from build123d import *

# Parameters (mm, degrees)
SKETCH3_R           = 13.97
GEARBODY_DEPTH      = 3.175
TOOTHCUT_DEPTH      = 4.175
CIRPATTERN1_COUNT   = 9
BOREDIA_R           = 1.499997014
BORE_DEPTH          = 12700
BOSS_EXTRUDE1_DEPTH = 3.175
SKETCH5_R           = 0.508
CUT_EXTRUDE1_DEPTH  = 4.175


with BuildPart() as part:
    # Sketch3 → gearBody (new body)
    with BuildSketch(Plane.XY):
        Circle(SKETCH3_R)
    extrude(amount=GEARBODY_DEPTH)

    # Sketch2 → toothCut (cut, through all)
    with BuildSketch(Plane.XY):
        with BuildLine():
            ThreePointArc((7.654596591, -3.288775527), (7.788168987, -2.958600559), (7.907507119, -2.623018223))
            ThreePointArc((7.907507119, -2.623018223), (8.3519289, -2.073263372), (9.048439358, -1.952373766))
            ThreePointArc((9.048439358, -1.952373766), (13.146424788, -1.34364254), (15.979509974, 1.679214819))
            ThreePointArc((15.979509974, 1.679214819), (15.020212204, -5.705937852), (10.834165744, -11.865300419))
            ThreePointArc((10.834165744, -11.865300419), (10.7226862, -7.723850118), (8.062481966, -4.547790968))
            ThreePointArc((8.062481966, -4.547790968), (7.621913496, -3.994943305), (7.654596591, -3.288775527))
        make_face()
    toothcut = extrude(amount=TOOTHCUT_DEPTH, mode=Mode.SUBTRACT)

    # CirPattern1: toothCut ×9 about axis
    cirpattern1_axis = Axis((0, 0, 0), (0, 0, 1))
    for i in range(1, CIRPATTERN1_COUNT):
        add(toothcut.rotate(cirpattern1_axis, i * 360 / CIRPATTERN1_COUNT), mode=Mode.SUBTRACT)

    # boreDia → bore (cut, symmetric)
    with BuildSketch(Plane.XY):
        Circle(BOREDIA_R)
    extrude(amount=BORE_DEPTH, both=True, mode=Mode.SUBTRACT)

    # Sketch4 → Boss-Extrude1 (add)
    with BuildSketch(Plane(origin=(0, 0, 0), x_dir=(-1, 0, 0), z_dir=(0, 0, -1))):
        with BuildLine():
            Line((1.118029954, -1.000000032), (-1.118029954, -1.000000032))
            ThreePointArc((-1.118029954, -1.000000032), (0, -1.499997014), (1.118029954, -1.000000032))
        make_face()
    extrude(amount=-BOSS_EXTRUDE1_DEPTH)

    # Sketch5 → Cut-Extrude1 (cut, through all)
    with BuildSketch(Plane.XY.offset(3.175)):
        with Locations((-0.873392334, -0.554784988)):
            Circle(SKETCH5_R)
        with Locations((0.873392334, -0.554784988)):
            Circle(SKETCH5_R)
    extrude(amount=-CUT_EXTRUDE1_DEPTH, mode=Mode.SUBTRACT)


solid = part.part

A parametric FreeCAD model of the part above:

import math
import FreeCAD as App
import Part
import Sketcher
from FreeCAD import Vector
Q = App.Units.Quantity

doc = App.newDocument("Part")
body = doc.addObject("PartDesign::Body", "Body")

sketch1 = doc.addObject("Sketcher::SketchObject", "Sketch")
body.addObject(sketch1)
sketch1.AttachmentSupport = (doc.XY_Plane, [""])
sketch1.MapMode = "FlatFace"
sketch1.addGeometry(Part.Circle(Vector(0, 0, 0), Vector(0, 0, 1), 14), False)
sketch1.addConstraint([
    Sketcher.Constraint("Coincident", 0, 3, -1, 1),
    Sketcher.Constraint("Diameter", 0, Q("1.1 in")),
])
pad1 = doc.addObject("PartDesign::Pad", "Pad")
body.addObject(pad1)
pad1.Profile = sketch1
pad1.Length = Q("0.125 in")

sketch2 = doc.addObject("Sketcher::SketchObject", "Sketch001")
body.addObject(sketch2)
sketch2.AttachmentSupport = (doc.XY_Plane, [""])
sketch2.MapMode = "FlatFace"
sketch2.addGeometry([
    Part.ArcOfCircle(Part.Circle(Vector(0, 0, 0), Vector(0, 0, 1), 8.3), math.radians(-23.25), math.radians(-18.35)),
    Part.ArcOfCircle(Part.Circle(Vector(8.6, -3.7, 0), Vector(0, 0, 1), 1), math.radians(157), math.radians(239)),
    Part.ArcOfCircle(Part.Circle(Vector(4.8, -10, 0), Vector(0, 0, 1), 6.3), math.radians(-18), math.radians(59)),
    Part.ArcOfCircle(Part.Circle(Vector(0, 0, 0), Vector(0, 0, 1), 16.1), math.radians(-48), math.radians(6)),
    Part.ArcOfCircle(Part.Circle(Vector(10.2, 4.2, 0), Vector(0, 0, 1), 6.3), math.radians(-101), math.radians(-24)),
    Part.ArcOfCircle(Part.Circle(Vector(8.9, -2.9, 0), Vector(0, 0, 1), 1), math.radians(79), math.radians(162)),
], False)
sketch2.addConstraint([
    Sketcher.Constraint("Tangent", 0, 1, 1, 1),
    Sketcher.Constraint("Tangent", 1, 2, 2, 2),
    Sketcher.Constraint("Coincident", 2, 1, 3, 1),
    Sketcher.Constraint("Coincident", 3, 2, 4, 2),
    Sketcher.Constraint("Tangent", 4, 1, 5, 1),
    Sketcher.Constraint("Tangent", 5, 2, 0, 2),
    Sketcher.Constraint("Coincident", 0, 3, -1, 1),
    Sketcher.Constraint("Coincident", 3, 3, -1, 1),
    Sketcher.Constraint("Equal", 2, 4),
    Sketcher.Constraint("Equal", 1, 5),
    Sketcher.Constraint("Radius", 0, Q("0.328 in")),
    Sketcher.Constraint("Radius", 3, 16.067498),
    Sketcher.Constraint("Radius", 1, 1.00457),
    Sketcher.Constraint("DistanceX", -1, 1, 1, 3, Q("0.3377001 in")),
    Sketcher.Constraint("Radius", 2, 6.297732),
    Sketcher.Constraint("DistanceY", 5, 3, -1, 1, 2.9393),
    Sketcher.Constraint("DistanceY", 2, 1, -1, 1, 11.8653),
    Sketcher.Constraint("DistanceX", 1, 3, 4, 3, 1.646002),
])
pocket1 = doc.addObject("PartDesign::Pocket", "Pocket")
body.addObject(pocket1)
pocket1.Profile = sketch2
pocket1.Type = "ThroughAll"
pocket1.Reversed = True
doc.recompute()

polarpattern = doc.addObject("PartDesign::PolarPattern", "PolarPattern")
body.addObject(polarpattern)
polarpattern.Originals = [pocket1]
polarpattern.Axis = (doc.Z_Axis, [""])
polarpattern.Angle = 360
polarpattern.Occurrences = 9
body.Tip = polarpattern

sketch3 = doc.addObject("Sketcher::SketchObject", "Sketch002")
body.addObject(sketch3)
sketch3.AttachmentSupport = (doc.XY_Plane, [""])
sketch3.MapMode = "FlatFace"
sketch3.addGeometry(Part.Circle(Vector(0, 0, 0), Vector(0, 0, 1), 1.5), False)
sketch3.addConstraint([
    Sketcher.Constraint("Coincident", 0, 3, -1, 1),
    Sketcher.Constraint("Diameter", 0, 2.999994),
])
pocket2 = doc.addObject("PartDesign::Pocket", "Pocket001")
body.addObject(pocket2)
pocket2.Profile = sketch3
pocket2.Length = Q("1000 in")
pocket2.Midplane = True

sketch4 = doc.addObject("Sketcher::SketchObject", "Sketch003")
body.addObject(sketch4)
sketch4.AttachmentSupport = (doc.XY_Plane, [""])
sketch4.MapMode = "FlatFace"
sketch4.addGeometry([
    Part.LineSegment(Vector(-1.1, -1, 0), Vector(1.1, -1, 0)),
    Part.ArcOfCircle(Part.Circle(Vector(0, 0, 0), Vector(0, 0, 1), 1.5), math.radians(-138), math.radians(-42)),
], False)
sketch4.addConstraint([
    Sketcher.Constraint("Coincident", 0, 1, 1, 1),
    Sketcher.Constraint("Coincident", 1, 2, 0, 2),
    Sketcher.Constraint("Horizontal", 0),
    Sketcher.Constraint("Coincident", 1, 3, -1, 1),
    Sketcher.Constraint("Radius", 1, 1.499997),
    Sketcher.Constraint("DistanceX", 0, 1, 0, 2, 2.23606),
])
pad2 = doc.addObject("PartDesign::Pad", "Pad001")
body.addObject(pad2)
pad2.Profile = sketch4
pad2.Length = Q("0.125 in")

sketch5 = doc.addObject("Sketcher::SketchObject", "Sketch004")
body.addObject(sketch5)
sketch5.AttachmentSupport = (doc.XY_Plane, [""])
sketch5.MapMode = "FlatFace"
sketch5.AttachmentOffset = App.Placement(Vector(0, 0, 0.125 * 25.4), App.Rotation())
sketch5.addGeometry([
    Part.Circle(Vector(-0.9, -0.6, 0), Vector(0, 0, 1), 0.5),
    Part.Circle(Vector(0.9, -0.6, 0), Vector(0, 0, 1), 0.5),
], False)
sketch5.addConstraint([
    Sketcher.Constraint("Equal", 0, 1),
    Sketcher.Constraint("Symmetric", 0, 3, 1, 3, -2),
    Sketcher.Constraint("Diameter", 0, Q("0.04 in")),
    Sketcher.Constraint("DistanceX", 0, 3, -1, 1, 0.873392),
    Sketcher.Constraint("DistanceY", 0, 3, -1, 1, 0.554785),
])
pocket3 = doc.addObject("PartDesign::Pocket", "Pocket002")
body.addObject(pocket3)
pocket3.Profile = sketch5
pocket3.Type = "ThroughAll"

doc.recompute()
